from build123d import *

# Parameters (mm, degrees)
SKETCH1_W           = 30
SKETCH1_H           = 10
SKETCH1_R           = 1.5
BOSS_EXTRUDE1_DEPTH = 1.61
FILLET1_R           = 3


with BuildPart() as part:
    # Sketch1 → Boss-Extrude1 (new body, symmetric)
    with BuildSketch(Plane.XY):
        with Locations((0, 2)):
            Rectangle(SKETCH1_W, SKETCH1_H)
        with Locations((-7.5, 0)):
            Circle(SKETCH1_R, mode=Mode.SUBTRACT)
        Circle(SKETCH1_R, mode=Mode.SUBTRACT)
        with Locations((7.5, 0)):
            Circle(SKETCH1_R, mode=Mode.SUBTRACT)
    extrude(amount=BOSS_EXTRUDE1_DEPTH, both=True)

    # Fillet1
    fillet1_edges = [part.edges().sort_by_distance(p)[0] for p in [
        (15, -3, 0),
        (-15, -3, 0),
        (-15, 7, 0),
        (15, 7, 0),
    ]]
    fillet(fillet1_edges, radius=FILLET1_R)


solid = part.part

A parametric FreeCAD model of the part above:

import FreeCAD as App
import Part
import Sketcher

V = App.Vector


def edges_at(feature, points):
    """Names of the edges that pass closest to the given points."""
    edges = feature.Shape.Edges
    near = lambda p: min(range(len(edges)), key=lambda i: edges[i].distToShape(Part.Vertex(*p))[0])
    return sorted({f"Edge{near(p) + 1}" for p in points})

doc = App.newDocument("Part")
body = doc.addObject("PartDesign::Body", "Body")

# Sketch on XY plane
sketch1 = body.newObject("Sketcher::SketchObject", "Sketch")
sketch1.AttachmentSupport = (doc.getObject("XY_Plane"), [""])
sketch1.MapMode = "FlatFace"
sketch1.addGeometry([
    Part.LineSegment(V(-15, 7, 0), V(-15, -3, 0)),  # 0
    Part.LineSegment(V(-15, -3, 0), V(15, -3, 0)),  # 1
    Part.LineSegment(V(15, -3, 0), V(15, 7, 0)),  # 2
    Part.LineSegment(V(15, 7, 0), V(-15, 7, 0)),  # 3
    Part.Circle(V(-7.5, 0, 0), V(0, 0, 1), 1.5),  # 4
    Part.Circle(V(0, 0, 0), V(0, 0, 1), 1.5),  # 5
    Part.Circle(V(7.5, 0, 0), V(0, 0, 1), 1.5),  # 6
], False)
sketch1.addConstraint([
    Sketcher.Constraint("Coincident", 0, 2, 1, 1),
    Sketcher.Constraint("Coincident", 1, 2, 2, 1),
    Sketcher.Constraint("Coincident", 2, 2, 3, 1),
    Sketcher.Constraint("Coincident", 3, 2, 0, 1),
    Sketcher.Constraint("Vertical", 0),
    Sketcher.Constraint("Horizontal", 1),
    Sketcher.Constraint("Vertical", 2),
    Sketcher.Constraint("Horizontal", 3),
    Sketcher.Constraint("Coincident", 5, 3, -1, 1),
    Sketcher.Constraint("Equal", 4, 5),
    Sketcher.Constraint("Equal", 5, 6),
    Sketcher.Constraint("Symmetric", 4, 3, 6, 3, -1, 1),
    Sketcher.Constraint("PointOnObject", 4, 3, -1),
    Sketcher.Constraint("Diameter", 4, 3.0),
    Sketcher.Constraint("DistanceX", 1, 1, 1, 2, 30.0),
    Sketcher.Constraint("DistanceY", 0, 2, 0, 1, 10.0),
    Sketcher.Constraint("DistanceX", 0, 2, -1, 1, 15.0),
    Sketcher.Constraint("DistanceY", 0, 2, -1, 1, 3.0),
    Sketcher.Constraint("DistanceX", 4, 3, 6, 3, 15.0),
])
pad1 = body.newObject("PartDesign::Pad", "Pad")
pad1.Profile = sketch1
pad1.Length = 3.22
pad1.Midplane = True
doc.recompute()

fillet = body.newObject("PartDesign::Fillet", "Fillet")
fillet.Base = (pad1, edges_at(pad1, [
    (15, -3, 0),
    (-15, -3, 0),
    (-15, 7, 0),
    (15, 7, 0),
]))
fillet.Radius = 3

doc.recompute()
